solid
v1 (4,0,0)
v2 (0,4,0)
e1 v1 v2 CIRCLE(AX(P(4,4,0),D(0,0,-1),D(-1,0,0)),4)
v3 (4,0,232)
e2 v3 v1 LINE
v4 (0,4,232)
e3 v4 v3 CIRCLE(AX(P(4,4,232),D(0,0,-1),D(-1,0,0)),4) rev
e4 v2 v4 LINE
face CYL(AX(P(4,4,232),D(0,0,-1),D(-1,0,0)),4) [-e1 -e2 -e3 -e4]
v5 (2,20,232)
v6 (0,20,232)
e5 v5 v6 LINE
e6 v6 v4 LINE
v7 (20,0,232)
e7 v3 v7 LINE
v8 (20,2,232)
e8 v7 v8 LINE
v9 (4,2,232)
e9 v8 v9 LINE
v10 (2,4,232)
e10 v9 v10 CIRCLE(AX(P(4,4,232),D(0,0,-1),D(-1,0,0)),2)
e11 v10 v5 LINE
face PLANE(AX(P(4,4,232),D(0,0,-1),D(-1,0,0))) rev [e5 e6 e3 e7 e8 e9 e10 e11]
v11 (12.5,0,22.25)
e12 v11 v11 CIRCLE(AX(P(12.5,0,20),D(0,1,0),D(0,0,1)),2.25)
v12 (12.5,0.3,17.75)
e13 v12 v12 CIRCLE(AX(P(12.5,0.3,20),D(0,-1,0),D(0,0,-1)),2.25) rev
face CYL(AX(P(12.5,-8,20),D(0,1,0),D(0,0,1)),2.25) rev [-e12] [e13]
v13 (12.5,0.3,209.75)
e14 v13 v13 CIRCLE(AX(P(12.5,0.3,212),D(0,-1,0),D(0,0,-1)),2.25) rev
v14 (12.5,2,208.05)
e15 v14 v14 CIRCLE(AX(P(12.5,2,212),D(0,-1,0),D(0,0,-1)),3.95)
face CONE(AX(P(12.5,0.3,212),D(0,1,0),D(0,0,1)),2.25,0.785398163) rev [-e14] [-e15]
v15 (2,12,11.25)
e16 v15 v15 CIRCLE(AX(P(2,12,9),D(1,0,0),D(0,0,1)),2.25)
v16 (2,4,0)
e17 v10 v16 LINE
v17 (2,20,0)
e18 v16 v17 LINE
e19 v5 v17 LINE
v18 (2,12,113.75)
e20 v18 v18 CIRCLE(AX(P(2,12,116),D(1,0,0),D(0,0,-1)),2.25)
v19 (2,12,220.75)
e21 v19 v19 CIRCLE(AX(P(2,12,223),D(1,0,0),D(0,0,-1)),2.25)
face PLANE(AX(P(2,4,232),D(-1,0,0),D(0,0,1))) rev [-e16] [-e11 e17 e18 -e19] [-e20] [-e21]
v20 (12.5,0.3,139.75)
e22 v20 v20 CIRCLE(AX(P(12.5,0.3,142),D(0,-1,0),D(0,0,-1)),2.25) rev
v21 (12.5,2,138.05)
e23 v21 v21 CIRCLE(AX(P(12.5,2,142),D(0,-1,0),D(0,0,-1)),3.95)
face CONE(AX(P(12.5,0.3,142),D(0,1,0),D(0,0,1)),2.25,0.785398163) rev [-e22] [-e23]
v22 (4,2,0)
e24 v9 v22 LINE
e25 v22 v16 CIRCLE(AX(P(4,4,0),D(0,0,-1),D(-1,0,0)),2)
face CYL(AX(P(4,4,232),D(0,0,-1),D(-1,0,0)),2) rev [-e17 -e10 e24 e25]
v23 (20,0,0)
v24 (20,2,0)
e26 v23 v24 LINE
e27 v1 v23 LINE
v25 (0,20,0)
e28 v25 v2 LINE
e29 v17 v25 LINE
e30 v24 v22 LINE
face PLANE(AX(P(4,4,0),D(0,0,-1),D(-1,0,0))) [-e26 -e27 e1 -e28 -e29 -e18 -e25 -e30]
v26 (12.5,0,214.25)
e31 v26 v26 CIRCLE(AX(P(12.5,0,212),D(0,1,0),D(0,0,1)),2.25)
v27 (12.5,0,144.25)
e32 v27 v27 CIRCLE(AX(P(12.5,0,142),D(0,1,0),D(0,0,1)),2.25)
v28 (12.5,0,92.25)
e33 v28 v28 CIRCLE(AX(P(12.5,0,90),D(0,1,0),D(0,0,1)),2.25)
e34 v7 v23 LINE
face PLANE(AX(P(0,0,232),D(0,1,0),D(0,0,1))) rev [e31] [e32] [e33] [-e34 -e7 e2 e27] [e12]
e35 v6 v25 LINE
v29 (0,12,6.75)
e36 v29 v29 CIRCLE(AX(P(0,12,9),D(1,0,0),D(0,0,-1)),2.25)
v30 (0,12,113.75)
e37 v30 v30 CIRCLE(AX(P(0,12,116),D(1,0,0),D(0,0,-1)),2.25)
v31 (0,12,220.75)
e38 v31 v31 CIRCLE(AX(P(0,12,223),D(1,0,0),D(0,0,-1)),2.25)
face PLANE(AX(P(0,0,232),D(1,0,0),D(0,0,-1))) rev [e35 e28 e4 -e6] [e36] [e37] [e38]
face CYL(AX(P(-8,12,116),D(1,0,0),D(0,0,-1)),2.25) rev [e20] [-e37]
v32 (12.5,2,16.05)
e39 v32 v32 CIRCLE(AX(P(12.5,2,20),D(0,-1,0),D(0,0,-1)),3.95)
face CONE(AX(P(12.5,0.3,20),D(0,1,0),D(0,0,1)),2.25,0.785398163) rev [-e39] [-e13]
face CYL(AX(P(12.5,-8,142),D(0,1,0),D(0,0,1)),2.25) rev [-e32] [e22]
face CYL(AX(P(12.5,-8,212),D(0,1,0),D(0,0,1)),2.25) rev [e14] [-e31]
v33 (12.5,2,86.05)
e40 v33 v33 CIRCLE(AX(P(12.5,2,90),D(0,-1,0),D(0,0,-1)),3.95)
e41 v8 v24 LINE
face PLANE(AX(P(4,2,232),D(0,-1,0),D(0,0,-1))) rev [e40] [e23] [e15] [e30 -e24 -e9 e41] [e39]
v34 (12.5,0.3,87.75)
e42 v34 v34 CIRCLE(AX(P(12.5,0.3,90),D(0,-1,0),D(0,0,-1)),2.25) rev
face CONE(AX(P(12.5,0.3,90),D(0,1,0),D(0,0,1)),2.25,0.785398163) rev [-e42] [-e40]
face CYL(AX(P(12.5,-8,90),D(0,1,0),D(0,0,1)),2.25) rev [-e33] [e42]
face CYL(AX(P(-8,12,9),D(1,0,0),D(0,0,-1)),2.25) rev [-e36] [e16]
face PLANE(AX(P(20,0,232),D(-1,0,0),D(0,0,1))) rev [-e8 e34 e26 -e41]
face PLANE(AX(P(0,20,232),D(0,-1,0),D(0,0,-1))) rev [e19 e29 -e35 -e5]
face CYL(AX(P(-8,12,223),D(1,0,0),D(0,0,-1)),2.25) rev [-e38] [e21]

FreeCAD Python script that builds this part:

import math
import FreeCAD as App
import Part
import Sketcher


def edges_at(feature, points):
    """Names of the edges that pass closest to the given points."""
    edges = feature.Shape.Edges
    near = lambda p: min(range(len(edges)), key=lambda i: edges[i].distToShape(Part.Vertex(*p))[0])
    return sorted({f"Edge{near(p) + 1}" for p in points})

doc = App.newDocument("Part")
body = doc.addObject("PartDesign::Body", "Body")

sketch1 = doc.addObject("Sketcher::SketchObject", "Sketch")
body.addObject(sketch1)
sketch1.AttachmentSupport = (doc.XY_Plane, [""])
sketch1.MapMode = "FlatFace"
sketch1.addGeometry([
    Part.LineSegment(App.Vector(0, 0, 0), App.Vector(20, 0, 0)),
    Part.LineSegment(App.Vector(20, 0, 0), App.Vector(20, 2, 0)),
    Part.LineSegment(App.Vector(20, 2, 0), App.Vector(4, 2, 0)),
    Part.ArcOfCircle(Part.Circle(App.Vector(4, 4, 0), App.Vector(0, 0, 1), 2), math.radians(-180), math.radians(-90)),
    Part.LineSegment(App.Vector(2, 4, 0), App.Vector(2, 20, 0)),
    Part.LineSegment(App.Vector(2, 20, 0), App.Vector(0, 20, 0)),
    Part.LineSegment(App.Vector(0, 20, 0), App.Vector(0, 0, 0)),
], False)
sketch1.addConstraint([
    Sketcher.Constraint("Coincident", 0, 2, 1, 1),
    Sketcher.Constraint("Coincident", 1, 2, 2, 1),
    Sketcher.Constraint("Tangent", 2, 2, 3, 2),
    Sketcher.Constraint("Tangent", 3, 1, 4, 1),
    Sketcher.Constraint("Coincident", 4, 2, 5, 1),
    Sketcher.Constraint("Coincident", 5, 2, 6, 1),
    Sketcher.Constraint("Coincident", 6, 2, 0, 1),
    Sketcher.Constraint("Horizontal", 0),
    Sketcher.Constraint("Vertical", 1),
    Sketcher.Constraint("Horizontal", 2),
    Sketcher.Constraint("Vertical", 4),
    Sketcher.Constraint("Horizontal", 5),
    Sketcher.Constraint("Vertical", 6),
    Sketcher.Constraint("Coincident", 6, 2, -1, 1),
    Sketcher.Constraint("Equal", 5, 1),
    Sketcher.Constraint("Equal", 2, 4),
    Sketcher.Constraint("Radius", 3, 2.0),
    Sketcher.Constraint("DistanceX", 0, 1, 0, 2, 20.0),
    Sketcher.Constraint("DistanceX", 2, 2, 2, 1, 16.0),
])
pad1 = doc.addObject("PartDesign::Pad", "Pad")
body.addObject(pad1)
pad1.Profile = sketch1
pad1.Length = 232

sketch2 = doc.addObject("Sketcher::SketchObject", "Sketch001")
body.addObject(sketch2)
sketch2.AttachmentSupport = (doc.YZ_Plane, [""])
sketch2.MapMode = "FlatFace"
sketch2.AttachmentOffset = App.Placement(App.Vector(0, 0, 2), App.Rotation())
sketch2.addGeometry([
    Part.Circle(App.Vector(12, 223, 0), App.Vector(0, 0, 1), 2.25),
    Part.Circle(App.Vector(12, 9, 0), App.Vector(0, 0, 1), 2.25),
    Part.Circle(App.Vector(12, 116, 0), App.Vector(0, 0, 1), 2.25),
], False)
sketch2.addConstraint([
    Sketcher.Constraint("Equal", 0, 1),
    Sketcher.Constraint("Equal", 1, 2),
    Sketcher.Constraint("Vertical", 0, 3, 1, 3),
    Sketcher.Constraint("Vertical", 1, 3, 2, 3),
    Sketcher.Constraint("Diameter", 0, 4.5),
    Sketcher.Constraint("DistanceX", -1, 1, 0, 3, 12.0),
    Sketcher.Constraint("DistanceY", -1, 1, 0, 3, 223.0),
    Sketcher.Constraint("DistanceY", -1, 1, 1, 3, 9.0),
    Sketcher.Constraint("DistanceY", -1, 1, 2, 3, 116.0),
])
pocket1 = doc.addObject("PartDesign::Pocket", "Pocket")
body.addObject(pocket1)
pocket1.Profile = sketch2
pocket1.Length = 10

sketch3 = doc.addObject("Sketcher::SketchObject", "Sketch002")
body.addObject(sketch3)
sketch3.AttachmentSupport = (doc.XZ_Plane, [""])
sketch3.MapMode = "FlatFace"
sketch3.AttachmentOffset = App.Placement(App.Vector(0, 0, -2), App.Rotation())
sketch3.addGeometry([
    Part.Circle(App.Vector(12.5, 212, 0), App.Vector(0, 0, 1), 2.25),
    Part.Circle(App.Vector(12.5, 142, 0), App.Vector(0, 0, 1), 2.25),
    Part.Circle(App.Vector(12.5, 20, 0), App.Vector(0, 0, 1), 2.25),
    Part.Circle(App.Vector(12.5, 90, 0), App.Vector(0, 0, 1), 2.25),
], False)
sketch3.addConstraint([
    Sketcher.Constraint("Equal", 0, 1),
    Sketcher.Constraint("Equal", 1, 2),
    Sketcher.Constraint("Equal", 2, 3),
    Sketcher.Constraint("Vertical", 0, 3, 1, 3),
    Sketcher.Constraint("Vertical", 1, 3, 2, 3),
    Sketcher.Constraint("Vertical", 2, 3, 3, 3),
    Sketcher.Constraint("Diameter", 0, 4.5),
    Sketcher.Constraint("DistanceY", -1, 1, 0, 3, 212.0),
    Sketcher.Constraint("DistanceY", -1, 1, 1, 3, 142.0),
    Sketcher.Constraint("DistanceY", -1, 1, 2, 3, 20.0),
    Sketcher.Constraint("DistanceY", -1, 1, 3, 3, 90.0),
    Sketcher.Constraint("DistanceX", -1, 1, 0, 3, 12.5),
])
pocket2 = doc.addObject("PartDesign::Pocket", "Pocket001")
body.addObject(pocket2)
pocket2.Profile = sketch3
pocket2.Length = 10
pocket2.Reversed = True
doc.recompute()

chamfer = doc.addObject("PartDesign::Chamfer", "Chamfer")
body.addObject(chamfer)
chamfer.Base = (pocket2, edges_at(pocket2, [
    (12.5, 2, 209.75),
    (12.5, 2, 139.75),
    (12.5, 2, 17.75),
    (12.5, 2, 87.75),
]))
chamfer.Size = 1.7
doc.recompute()

fillet = doc.addObject("PartDesign::Fillet", "Fillet")
body.addObject(fillet)
fillet.Base = (chamfer, edges_at(chamfer, [(0, 0, 116)]))
fillet.Radius = 4

doc.recompute()
